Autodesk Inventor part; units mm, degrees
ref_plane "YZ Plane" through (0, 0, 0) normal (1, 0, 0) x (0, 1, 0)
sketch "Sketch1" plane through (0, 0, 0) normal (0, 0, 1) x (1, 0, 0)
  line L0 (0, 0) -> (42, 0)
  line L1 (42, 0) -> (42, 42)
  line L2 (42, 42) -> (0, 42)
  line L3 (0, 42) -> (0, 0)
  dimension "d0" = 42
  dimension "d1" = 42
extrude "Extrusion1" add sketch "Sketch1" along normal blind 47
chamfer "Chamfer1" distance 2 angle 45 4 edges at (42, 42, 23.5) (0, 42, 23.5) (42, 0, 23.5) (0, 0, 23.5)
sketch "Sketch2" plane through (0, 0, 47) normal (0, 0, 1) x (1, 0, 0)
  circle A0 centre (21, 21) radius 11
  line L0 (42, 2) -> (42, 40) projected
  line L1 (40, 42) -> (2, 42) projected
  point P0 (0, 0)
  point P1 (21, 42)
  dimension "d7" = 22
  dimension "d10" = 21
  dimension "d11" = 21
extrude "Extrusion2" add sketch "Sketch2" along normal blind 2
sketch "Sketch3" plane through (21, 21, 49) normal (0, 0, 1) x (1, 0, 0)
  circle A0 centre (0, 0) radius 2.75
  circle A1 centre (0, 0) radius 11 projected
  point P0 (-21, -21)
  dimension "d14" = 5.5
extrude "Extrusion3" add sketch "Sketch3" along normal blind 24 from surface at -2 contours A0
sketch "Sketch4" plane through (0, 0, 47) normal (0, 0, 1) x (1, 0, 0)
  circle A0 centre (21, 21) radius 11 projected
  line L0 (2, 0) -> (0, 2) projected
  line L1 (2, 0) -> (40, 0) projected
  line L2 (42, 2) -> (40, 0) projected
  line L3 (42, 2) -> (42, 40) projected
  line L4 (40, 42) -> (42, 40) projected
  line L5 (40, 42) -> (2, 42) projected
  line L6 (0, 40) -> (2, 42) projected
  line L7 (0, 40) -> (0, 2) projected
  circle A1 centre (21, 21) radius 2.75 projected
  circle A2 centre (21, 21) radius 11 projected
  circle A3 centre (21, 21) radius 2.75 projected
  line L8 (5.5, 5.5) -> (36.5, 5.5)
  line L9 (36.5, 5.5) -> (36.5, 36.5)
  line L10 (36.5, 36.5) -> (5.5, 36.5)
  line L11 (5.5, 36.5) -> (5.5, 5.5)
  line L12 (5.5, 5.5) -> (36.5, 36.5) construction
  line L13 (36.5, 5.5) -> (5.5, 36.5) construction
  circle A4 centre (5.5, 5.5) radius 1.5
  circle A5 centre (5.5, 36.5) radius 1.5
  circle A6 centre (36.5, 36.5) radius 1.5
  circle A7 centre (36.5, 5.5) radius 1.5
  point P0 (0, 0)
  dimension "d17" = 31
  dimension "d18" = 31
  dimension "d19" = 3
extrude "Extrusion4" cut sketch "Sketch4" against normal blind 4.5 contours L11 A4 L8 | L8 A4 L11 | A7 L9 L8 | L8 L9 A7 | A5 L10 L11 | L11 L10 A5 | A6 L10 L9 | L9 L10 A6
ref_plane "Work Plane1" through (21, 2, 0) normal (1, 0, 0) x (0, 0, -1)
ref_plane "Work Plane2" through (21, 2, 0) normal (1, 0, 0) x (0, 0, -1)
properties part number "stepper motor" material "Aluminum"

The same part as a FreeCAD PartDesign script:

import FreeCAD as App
import Part
import Sketcher
from FreeCAD import Vector


def edges_at(feature, points):
    """Names of the edges that pass closest to the given points."""
    edges = feature.Shape.Edges
    near = lambda p: min(range(len(edges)), key=lambda i: edges[i].distToShape(Part.Vertex(*p))[0])
    return sorted({f"Edge{near(p) + 1}" for p in points})


def add_polygon(sketch, points):
    """Adds a closed chain of lines whose ends are joined by coincident constraints."""
    first, n = sketch.GeometryCount, len(points)
    for a, b in zip(points, points[1:] + points[:1]):
        sketch.addGeometry(Part.LineSegment(App.Vector(*a, 0), App.Vector(*b, 0)), False)
    for i in range(n):
        sketch.addConstraint(Sketcher.Constraint("Coincident", first + i, 2, first + (i + 1) % n, 1))

doc = App.newDocument("Part")
body = doc.addObject("PartDesign::Body", "Body")

# Sketch on XY plane
sketch1 = doc.addObject("Sketcher::SketchObject", "Sketch")
body.addObject(sketch1)
sketch1.AttachmentSupport = (doc.XY_Plane, [""])
sketch1.MapMode = "FlatFace"
add_polygon(sketch1, [(0, 42), (0, 0), (42, 0), (42, 42)])  # lines 0-3
sketch1.addConstraint([
    Sketcher.Constraint("Vertical", 0),
    Sketcher.Constraint("Horizontal", 1),
    Sketcher.Constraint("Vertical", 2),
    Sketcher.Constraint("Horizontal", 3),
    Sketcher.Constraint("Coincident", 0, 2, -1, 1),
    Sketcher.Constraint("Equal", 3, 0),
    Sketcher.Constraint("DistanceX", 1, 1, 1, 2, 42.0),
])
pad1 = doc.addObject("PartDesign::Pad", "Pad")
body.addObject(pad1)
pad1.Profile = sketch1
pad1.Length = 47
doc.recompute()

chamfer = doc.addObject("PartDesign::Chamfer", "Chamfer")
body.addObject(chamfer)
chamfer.Base = (pad1, edges_at(pad1, [
    (42, 42, 23.5),
    (0, 42, 23.5),
    (42, 0, 23.5),
    (0, 0, 23.5),
]))
chamfer.Size = 2

# Sketch on XY plane
sketch2 = doc.addObject("Sketcher::SketchObject", "Sketch001")
body.addObject(sketch2)
sketch2.AttachmentSupport = (doc.XY_Plane, [""])
sketch2.MapMode = "FlatFace"
sketch2.AttachmentOffset = App.Placement(Vector(0, 0, 47), App.Rotation())
sketch2.addGeometry(Part.Circle(Vector(21, 21, 0), Vector(0, 0, 1), 11), False)
sketch2.addConstraint([
    Sketcher.Constraint("Diameter", 0, 22.0),
    Sketcher.Constraint("DistanceX", -1, 1, 0, 3, 21.0),
    Sketcher.Constraint("DistanceY", -1, 1, 0, 3, 21.0),
])
pad2 = doc.addObject("PartDesign::Pad", "Pad001")
body.addObject(pad2)
pad2.Profile = sketch2
pad2.Length = 2

# Sketch on XY plane
sketch3 = doc.addObject("Sketcher::SketchObject", "Sketch002")
body.addObject(sketch3)
sketch3.AttachmentSupport = (doc.XY_Plane, [""])
sketch3.MapMode = "FlatFace"
sketch3.AttachmentOffset = App.Placement(Vector(0, 0, 47), App.Rotation())
sketch3.addGeometry(Part.Circle(Vector(21, 21, 0), Vector(0, 0, 1), 2.8), False)
sketch3.addConstraint([
    Sketcher.Constraint("Diameter", 0, 5.5),
    Sketcher.Constraint("DistanceX", -1, 1, 0, 3, 21.0),
    Sketcher.Constraint("DistanceY", -1, 1, 0, 3, 21.0),
])
pad3 = doc.addObject("PartDesign::Pad", "Pad002")
body.addObject(pad3)
pad3.Profile = sketch3
pad3.Length = 24

# Sketch on XY plane
sketch4 = doc.addObject("Sketcher::SketchObject", "Sketch003")
body.addObject(sketch4)
sketch4.AttachmentSupport = (doc.XY_Plane, [""])
sketch4.MapMode = "FlatFace"
sketch4.AttachmentOffset = App.Placement(Vector(0, 0, 47), App.Rotation())
sketch4.addGeometry([
    Part.Circle(Vector(5.5, 5.5, 0), Vector(0, 0, 1), 1.5),
    Part.Circle(Vector(36.5, 5.5, 0), Vector(0, 0, 1), 1.5),
    Part.Circle(Vector(5.5, 36.5, 0), Vector(0, 0, 1), 1.5),
    Part.Circle(Vector(36.5, 36.5, 0), Vector(0, 0, 1), 1.5),
], False)
sketch4.addConstraint([
    Sketcher.Constraint("Equal", 0, 1),
    Sketcher.Constraint("Equal", 1, 2),
    Sketcher.Constraint("Equal", 2, 3),
    Sketcher.Constraint("Horizontal", 0, 3, 1, 3),
    Sketcher.Constraint("Horizontal", 2, 3, 3, 3),
    Sketcher.Constraint("Vertical", 0, 3, 2, 3),
    Sketcher.Constraint("Vertical", 1, 3, 3, 3),
    Sketcher.Constraint("Diameter", 0, 3.0),
    Sketcher.Constraint("DistanceX", 0, 3, 1, 3, 31.0),
    Sketcher.Constraint("DistanceY", 0, 3, 2, 3, 31.0),
    Sketcher.Constraint("DistanceX", -1, 1, 0, 3, 5.5),
    Sketcher.Constraint("DistanceY", -1, 1, 0, 3, 5.5),
])
pocket1 = doc.addObject("PartDesign::Pocket", "Pocket")
body.addObject(pocket1)
pocket1.Profile = sketch4
pocket1.Length = 4.5

doc.recompute()
